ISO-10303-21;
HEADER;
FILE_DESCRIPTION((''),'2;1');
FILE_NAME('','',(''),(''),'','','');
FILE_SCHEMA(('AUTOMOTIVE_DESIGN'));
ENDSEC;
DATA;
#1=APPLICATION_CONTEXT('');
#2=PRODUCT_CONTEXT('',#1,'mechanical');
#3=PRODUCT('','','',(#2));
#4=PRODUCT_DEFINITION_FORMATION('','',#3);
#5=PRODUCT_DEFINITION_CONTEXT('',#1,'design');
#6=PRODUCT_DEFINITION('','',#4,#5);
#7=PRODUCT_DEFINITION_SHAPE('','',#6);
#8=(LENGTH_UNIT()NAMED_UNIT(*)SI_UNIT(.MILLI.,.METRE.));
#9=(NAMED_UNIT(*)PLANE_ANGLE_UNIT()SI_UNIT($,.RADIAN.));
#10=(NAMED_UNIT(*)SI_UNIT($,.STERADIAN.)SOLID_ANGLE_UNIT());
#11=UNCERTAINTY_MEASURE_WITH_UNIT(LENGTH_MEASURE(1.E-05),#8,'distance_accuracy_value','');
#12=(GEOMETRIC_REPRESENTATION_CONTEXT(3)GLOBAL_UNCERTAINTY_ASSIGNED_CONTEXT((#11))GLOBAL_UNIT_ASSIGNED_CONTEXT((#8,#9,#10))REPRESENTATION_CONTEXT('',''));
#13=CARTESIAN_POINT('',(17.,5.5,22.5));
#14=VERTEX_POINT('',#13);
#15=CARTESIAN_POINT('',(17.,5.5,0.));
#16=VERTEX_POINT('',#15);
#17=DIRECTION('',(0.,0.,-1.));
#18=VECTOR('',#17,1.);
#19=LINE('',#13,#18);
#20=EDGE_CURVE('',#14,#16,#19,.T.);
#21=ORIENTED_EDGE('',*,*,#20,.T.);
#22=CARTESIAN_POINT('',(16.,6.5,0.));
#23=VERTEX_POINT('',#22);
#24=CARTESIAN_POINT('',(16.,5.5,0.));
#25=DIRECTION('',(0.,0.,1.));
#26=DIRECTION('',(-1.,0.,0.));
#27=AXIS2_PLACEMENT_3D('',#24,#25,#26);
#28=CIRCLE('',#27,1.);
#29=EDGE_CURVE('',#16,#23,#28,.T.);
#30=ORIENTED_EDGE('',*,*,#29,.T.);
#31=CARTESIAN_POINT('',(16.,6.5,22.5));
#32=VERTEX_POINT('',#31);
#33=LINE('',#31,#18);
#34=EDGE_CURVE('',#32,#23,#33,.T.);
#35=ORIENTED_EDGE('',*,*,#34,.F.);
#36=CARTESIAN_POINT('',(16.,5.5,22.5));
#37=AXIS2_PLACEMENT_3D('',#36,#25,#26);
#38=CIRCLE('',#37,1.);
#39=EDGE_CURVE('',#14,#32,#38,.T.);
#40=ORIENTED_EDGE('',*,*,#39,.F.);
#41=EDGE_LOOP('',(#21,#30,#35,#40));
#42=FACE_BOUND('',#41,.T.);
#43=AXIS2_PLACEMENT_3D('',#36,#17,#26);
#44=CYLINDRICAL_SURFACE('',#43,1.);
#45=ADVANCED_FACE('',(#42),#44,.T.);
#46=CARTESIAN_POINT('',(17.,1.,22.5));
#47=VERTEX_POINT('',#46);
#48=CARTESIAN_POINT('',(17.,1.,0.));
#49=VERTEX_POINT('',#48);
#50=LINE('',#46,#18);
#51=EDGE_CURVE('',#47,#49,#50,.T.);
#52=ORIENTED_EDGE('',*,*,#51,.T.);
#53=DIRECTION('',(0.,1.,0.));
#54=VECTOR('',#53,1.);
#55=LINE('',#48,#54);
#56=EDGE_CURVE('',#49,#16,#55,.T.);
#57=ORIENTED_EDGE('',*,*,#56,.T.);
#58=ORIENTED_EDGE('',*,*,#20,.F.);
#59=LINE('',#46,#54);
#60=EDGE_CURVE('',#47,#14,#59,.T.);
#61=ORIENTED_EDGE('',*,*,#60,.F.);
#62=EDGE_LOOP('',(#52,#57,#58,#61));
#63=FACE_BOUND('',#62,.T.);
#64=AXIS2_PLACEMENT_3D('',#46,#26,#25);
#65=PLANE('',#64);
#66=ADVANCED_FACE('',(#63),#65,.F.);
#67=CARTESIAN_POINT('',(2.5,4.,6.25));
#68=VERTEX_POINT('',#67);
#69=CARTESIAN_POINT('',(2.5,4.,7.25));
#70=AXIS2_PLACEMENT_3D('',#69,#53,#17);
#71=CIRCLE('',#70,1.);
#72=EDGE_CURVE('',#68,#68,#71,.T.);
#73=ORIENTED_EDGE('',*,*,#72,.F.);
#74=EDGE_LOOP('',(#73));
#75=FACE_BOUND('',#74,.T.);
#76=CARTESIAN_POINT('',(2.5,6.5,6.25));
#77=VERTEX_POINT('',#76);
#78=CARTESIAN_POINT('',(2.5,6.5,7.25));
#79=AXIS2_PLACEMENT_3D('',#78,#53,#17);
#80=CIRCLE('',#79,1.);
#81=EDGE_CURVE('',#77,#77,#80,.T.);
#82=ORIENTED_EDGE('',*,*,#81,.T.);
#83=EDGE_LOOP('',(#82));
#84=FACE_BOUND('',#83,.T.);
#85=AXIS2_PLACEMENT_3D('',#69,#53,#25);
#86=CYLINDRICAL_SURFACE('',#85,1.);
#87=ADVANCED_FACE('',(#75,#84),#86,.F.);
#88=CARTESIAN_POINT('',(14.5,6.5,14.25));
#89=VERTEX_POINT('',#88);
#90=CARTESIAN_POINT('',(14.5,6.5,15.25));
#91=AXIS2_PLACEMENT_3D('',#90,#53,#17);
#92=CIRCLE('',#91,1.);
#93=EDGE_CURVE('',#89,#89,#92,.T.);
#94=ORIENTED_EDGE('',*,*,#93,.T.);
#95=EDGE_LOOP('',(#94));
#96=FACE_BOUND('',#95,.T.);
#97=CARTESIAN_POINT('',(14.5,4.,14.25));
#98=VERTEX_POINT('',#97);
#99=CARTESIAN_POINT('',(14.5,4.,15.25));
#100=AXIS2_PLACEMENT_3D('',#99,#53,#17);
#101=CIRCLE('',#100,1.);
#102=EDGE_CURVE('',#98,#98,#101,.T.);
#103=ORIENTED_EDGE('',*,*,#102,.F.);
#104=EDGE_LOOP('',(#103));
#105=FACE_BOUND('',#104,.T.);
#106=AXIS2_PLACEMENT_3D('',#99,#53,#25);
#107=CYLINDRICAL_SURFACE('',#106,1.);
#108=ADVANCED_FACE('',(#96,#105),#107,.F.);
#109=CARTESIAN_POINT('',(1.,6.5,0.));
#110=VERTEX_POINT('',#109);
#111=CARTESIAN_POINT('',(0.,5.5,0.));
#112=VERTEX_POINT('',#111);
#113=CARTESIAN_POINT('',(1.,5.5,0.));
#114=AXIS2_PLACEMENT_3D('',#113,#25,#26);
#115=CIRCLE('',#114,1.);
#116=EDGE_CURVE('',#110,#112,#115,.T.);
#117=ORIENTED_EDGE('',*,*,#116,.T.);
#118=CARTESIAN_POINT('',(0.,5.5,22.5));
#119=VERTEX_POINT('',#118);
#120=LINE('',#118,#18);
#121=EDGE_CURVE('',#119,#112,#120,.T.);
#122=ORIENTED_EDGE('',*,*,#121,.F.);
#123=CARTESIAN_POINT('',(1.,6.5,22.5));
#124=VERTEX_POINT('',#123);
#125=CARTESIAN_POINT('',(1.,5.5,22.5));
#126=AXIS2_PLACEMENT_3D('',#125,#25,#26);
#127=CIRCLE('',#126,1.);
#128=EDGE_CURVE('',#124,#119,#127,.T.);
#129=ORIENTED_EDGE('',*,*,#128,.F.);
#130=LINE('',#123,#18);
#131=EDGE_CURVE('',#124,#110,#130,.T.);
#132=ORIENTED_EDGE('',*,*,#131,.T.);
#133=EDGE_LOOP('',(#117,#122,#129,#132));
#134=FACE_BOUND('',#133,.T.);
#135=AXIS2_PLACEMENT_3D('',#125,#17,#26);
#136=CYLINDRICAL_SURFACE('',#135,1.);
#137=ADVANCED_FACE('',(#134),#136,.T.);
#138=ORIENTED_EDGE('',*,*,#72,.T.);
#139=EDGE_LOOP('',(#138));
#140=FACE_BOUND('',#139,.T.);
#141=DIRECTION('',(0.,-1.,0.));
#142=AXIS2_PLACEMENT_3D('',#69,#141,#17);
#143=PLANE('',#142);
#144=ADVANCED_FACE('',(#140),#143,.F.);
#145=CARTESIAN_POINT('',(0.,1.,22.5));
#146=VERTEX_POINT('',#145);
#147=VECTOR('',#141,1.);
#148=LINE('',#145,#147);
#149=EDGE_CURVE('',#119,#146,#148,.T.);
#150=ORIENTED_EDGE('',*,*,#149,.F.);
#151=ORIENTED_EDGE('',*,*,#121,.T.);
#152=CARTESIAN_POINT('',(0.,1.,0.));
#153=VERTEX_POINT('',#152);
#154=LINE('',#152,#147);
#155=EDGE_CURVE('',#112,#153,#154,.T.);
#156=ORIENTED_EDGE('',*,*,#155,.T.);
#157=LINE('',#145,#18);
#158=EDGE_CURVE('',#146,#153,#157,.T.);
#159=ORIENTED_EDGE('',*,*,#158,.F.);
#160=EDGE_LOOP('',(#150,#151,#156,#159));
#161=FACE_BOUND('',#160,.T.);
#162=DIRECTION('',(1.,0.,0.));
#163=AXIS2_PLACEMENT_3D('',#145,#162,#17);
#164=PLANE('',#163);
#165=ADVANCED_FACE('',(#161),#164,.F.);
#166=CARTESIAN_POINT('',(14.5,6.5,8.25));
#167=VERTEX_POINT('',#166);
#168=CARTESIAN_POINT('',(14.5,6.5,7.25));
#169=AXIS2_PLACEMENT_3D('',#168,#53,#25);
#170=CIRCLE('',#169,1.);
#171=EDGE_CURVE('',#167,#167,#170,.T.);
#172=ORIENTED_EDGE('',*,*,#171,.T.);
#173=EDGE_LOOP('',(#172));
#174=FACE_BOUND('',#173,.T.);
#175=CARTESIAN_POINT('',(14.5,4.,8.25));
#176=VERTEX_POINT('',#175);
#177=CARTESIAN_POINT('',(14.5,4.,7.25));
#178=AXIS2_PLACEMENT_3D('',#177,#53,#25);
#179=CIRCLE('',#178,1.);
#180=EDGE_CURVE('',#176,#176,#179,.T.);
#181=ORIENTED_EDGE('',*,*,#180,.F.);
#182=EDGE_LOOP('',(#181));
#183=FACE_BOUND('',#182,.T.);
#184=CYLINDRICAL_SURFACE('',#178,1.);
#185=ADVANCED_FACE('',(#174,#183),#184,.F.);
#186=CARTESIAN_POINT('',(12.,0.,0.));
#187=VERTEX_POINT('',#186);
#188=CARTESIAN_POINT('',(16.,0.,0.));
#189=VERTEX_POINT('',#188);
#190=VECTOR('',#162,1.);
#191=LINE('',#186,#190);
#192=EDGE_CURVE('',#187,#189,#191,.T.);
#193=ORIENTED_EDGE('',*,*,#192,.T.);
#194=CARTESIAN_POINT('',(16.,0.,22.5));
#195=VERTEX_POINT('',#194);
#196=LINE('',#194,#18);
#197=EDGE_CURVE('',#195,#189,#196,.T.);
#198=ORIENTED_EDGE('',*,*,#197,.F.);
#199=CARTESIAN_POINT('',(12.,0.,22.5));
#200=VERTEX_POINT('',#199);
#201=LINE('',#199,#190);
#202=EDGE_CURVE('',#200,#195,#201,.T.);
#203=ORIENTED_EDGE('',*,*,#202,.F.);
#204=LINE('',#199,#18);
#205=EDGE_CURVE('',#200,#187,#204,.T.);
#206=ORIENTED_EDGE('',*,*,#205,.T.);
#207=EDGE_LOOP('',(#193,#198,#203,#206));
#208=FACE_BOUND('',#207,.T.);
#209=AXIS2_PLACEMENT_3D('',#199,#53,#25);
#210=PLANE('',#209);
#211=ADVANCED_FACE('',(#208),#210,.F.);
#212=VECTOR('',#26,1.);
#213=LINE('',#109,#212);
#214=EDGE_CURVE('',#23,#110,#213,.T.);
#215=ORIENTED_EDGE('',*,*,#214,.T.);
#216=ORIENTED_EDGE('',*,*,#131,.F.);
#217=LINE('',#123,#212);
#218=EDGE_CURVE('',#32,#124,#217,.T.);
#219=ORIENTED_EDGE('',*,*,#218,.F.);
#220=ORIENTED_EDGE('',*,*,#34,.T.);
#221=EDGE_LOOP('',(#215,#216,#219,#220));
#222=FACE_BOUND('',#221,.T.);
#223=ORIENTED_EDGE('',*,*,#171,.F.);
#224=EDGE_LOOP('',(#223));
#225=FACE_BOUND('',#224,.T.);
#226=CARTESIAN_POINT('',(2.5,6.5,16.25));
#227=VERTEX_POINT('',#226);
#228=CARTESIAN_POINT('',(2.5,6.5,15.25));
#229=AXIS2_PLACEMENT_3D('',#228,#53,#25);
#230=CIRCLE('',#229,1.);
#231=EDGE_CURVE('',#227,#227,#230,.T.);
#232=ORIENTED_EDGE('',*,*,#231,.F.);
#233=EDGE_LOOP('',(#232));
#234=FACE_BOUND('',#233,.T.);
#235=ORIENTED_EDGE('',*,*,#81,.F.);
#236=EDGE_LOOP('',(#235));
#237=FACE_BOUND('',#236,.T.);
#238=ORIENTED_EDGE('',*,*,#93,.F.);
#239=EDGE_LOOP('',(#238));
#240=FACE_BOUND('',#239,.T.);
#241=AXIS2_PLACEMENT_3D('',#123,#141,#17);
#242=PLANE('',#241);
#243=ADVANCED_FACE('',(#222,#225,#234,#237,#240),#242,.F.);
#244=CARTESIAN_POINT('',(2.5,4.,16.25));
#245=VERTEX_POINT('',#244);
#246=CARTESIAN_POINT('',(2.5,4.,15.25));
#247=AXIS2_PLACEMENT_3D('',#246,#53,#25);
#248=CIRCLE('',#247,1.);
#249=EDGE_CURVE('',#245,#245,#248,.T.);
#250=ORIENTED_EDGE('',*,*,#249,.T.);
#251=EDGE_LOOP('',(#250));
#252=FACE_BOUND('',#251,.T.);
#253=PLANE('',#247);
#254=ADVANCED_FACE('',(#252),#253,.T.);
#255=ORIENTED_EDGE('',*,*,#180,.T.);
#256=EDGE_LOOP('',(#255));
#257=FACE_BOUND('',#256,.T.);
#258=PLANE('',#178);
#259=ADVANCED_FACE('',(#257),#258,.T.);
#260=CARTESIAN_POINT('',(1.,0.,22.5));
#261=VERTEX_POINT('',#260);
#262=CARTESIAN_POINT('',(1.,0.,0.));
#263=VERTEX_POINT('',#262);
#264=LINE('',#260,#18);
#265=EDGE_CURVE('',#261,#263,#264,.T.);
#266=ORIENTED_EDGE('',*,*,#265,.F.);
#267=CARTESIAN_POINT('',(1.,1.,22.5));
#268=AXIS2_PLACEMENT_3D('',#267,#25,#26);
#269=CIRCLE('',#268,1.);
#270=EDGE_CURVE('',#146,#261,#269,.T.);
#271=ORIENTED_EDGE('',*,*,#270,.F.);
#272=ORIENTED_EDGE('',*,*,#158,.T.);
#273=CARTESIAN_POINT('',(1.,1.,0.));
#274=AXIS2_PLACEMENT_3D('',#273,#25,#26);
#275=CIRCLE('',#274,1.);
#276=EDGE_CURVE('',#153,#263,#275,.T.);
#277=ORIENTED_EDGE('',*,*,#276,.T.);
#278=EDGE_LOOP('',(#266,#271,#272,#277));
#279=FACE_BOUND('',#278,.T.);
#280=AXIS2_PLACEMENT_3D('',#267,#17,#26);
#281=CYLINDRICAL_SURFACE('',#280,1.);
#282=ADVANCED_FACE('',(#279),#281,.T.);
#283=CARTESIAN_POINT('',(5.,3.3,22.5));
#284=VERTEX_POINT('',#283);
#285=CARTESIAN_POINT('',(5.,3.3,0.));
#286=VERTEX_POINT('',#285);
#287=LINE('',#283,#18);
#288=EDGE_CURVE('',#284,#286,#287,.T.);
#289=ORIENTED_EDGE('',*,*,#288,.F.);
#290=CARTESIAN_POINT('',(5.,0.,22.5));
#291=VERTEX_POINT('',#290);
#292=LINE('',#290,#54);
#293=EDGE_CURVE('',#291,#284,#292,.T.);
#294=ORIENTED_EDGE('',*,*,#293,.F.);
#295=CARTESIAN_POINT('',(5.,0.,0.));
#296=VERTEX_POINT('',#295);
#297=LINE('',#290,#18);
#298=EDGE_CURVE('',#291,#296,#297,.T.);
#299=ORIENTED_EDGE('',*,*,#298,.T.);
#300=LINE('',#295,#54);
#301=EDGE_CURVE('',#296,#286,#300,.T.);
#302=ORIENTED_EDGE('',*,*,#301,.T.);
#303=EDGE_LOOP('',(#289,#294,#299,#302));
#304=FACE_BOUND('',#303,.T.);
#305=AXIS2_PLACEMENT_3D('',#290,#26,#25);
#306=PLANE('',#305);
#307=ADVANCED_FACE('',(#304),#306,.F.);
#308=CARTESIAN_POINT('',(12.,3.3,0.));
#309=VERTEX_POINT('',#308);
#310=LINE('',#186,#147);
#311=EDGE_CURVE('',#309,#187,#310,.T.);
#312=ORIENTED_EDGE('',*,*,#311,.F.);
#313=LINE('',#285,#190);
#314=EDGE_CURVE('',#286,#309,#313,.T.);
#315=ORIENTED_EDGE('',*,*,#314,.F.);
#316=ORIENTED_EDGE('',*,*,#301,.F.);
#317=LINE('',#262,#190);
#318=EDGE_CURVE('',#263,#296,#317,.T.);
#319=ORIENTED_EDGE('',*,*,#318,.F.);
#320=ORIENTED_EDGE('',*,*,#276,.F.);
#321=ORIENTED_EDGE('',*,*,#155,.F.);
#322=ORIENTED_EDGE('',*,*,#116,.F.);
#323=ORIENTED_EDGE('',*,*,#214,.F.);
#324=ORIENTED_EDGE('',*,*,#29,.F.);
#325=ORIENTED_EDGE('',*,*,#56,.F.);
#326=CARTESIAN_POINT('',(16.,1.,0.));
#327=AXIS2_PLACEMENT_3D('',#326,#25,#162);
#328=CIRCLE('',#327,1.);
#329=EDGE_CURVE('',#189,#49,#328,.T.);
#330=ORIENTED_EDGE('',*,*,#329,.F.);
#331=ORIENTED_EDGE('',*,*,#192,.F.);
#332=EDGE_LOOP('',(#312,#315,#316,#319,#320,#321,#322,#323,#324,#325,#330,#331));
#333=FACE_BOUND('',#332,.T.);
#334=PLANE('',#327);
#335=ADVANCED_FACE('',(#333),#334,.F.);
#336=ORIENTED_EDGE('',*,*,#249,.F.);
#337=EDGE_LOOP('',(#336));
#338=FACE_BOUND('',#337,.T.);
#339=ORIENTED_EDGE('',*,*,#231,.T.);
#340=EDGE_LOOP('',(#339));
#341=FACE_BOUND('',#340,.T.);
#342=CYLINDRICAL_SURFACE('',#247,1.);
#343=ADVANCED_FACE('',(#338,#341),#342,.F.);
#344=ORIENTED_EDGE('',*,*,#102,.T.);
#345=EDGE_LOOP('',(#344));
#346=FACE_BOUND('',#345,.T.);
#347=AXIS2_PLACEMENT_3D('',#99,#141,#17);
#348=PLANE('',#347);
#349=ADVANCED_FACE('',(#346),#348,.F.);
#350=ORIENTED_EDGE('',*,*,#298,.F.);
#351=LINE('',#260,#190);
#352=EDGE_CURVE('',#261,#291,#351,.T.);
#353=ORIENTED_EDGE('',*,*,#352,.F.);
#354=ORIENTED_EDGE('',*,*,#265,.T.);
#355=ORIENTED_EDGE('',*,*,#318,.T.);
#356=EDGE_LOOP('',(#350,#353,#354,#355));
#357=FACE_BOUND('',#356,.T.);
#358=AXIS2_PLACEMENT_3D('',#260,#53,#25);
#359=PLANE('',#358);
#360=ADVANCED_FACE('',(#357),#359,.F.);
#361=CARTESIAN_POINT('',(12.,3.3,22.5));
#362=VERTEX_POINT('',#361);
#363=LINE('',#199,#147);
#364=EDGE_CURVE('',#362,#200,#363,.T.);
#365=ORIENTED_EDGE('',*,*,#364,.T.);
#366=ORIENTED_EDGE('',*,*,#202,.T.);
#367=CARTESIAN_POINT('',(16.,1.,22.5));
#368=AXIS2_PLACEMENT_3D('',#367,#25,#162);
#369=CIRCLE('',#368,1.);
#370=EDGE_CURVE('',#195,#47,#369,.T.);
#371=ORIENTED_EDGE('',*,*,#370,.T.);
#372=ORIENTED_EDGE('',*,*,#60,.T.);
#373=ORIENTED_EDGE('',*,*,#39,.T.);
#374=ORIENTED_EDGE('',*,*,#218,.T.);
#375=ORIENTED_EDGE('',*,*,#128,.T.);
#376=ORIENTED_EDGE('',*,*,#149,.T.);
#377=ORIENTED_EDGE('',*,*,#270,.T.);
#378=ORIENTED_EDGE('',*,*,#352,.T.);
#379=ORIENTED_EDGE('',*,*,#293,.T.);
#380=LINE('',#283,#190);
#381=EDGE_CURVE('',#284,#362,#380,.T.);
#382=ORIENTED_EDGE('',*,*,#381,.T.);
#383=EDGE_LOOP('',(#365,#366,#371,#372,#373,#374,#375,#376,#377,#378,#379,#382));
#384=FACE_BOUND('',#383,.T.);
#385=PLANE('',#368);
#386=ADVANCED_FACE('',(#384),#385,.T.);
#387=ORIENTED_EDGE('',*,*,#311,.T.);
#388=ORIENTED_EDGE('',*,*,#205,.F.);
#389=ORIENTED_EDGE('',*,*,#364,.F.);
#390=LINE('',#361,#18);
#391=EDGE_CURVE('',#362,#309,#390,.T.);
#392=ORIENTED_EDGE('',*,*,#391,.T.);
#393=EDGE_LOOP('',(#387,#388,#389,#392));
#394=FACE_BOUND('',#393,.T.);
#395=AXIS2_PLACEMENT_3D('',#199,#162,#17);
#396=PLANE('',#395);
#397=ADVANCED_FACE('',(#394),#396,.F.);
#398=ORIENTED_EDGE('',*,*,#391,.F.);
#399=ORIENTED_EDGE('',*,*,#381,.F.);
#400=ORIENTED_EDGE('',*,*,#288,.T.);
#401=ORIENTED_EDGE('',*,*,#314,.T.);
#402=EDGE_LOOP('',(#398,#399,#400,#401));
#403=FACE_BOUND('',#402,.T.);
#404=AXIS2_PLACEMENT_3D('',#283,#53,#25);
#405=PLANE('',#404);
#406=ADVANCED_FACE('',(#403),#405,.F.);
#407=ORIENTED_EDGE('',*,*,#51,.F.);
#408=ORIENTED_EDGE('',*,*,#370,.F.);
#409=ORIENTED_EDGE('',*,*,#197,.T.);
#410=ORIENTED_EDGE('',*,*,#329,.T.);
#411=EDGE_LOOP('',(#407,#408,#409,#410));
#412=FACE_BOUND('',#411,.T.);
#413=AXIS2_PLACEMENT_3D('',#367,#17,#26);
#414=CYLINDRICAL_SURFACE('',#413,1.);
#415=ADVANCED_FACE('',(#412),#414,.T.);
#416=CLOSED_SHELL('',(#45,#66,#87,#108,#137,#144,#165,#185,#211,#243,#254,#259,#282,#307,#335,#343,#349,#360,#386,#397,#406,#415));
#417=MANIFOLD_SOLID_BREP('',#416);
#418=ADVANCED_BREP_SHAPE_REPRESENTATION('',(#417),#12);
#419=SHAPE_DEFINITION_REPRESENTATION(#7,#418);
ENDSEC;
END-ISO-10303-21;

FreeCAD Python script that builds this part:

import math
import FreeCAD as App
import Part
import Sketcher
Q = App.Units.Quantity

doc = App.newDocument("Part")
body = doc.addObject("PartDesign::Body", "Body")

sketch1 = doc.addObject("Sketcher::SketchObject", "Sketch")
body.addObject(sketch1)
sketch1.AttachmentSupport = (doc.XY_Plane, [""])
sketch1.MapMode = "FlatFace"
sketch1.addGeometry(Part.LineSegment(App.Vector(5, 3.3, 0), App.Vector(12, 3.3, 0)), False)
sketch1.addGeometry(Part.LineSegment(App.Vector(12, 3.3, 0), App.Vector(12, 0, 0)), False)
sketch1.addGeometry(Part.LineSegment(App.Vector(12, 0, 0), App.Vector(16, 0, 0)), False)
sketch1.addGeometry(Part.ArcOfCircle(Part.Circle(App.Vector(16, 1, 0), App.Vector(0, 0, 1), 1), math.radians(-90), math.radians(0)), False)
sketch1.addGeometry(Part.LineSegment(App.Vector(17, 1, 0), App.Vector(17, 5.5, 0)), False)
sketch1.addGeometry(Part.ArcOfCircle(Part.Circle(App.Vector(16, 5.5, 0), App.Vector(0, 0, 1), 1), math.radians(0), math.radians(90)), False)
sketch1.addGeometry(Part.LineSegment(App.Vector(16, 6.5, 0), App.Vector(1, 6.5, 0)), False)
sketch1.addGeometry(Part.ArcOfCircle(Part.Circle(App.Vector(1, 5.5, 0), App.Vector(0, 0, 1), 1), math.radians(90), math.radians(180)), False)
sketch1.addGeometry(Part.LineSegment(App.Vector(0, 5.5, 0), App.Vector(0, 1, 0)), False)
sketch1.addGeometry(Part.ArcOfCircle(Part.Circle(App.Vector(1, 1, 0), App.Vector(0, 0, 1), 1), math.radians(-180), math.radians(-90)), False)
sketch1.addGeometry(Part.LineSegment(App.Vector(1, 0, 0), App.Vector(5, 0, 0)), False)
sketch1.addGeometry(Part.LineSegment(App.Vector(5, 0, 0), App.Vector(5, 3.3, 0)), False)
sketch1.addConstraint(Sketcher.Constraint("Coincident", 0, 2, 1, 1))
sketch1.addConstraint(Sketcher.Constraint("Coincident", 1, 2, 2, 1))
sketch1.addConstraint(Sketcher.Constraint("Tangent", 2, 2, 3, 1))
sketch1.addConstraint(Sketcher.Constraint("Tangent", 3, 2, 4, 1))
sketch1.addConstraint(Sketcher.Constraint("Tangent", 4, 2, 5, 1))
sketch1.addConstraint(Sketcher.Constraint("Tangent", 5, 2, 6, 1))
sketch1.addConstraint(Sketcher.Constraint("Tangent", 6, 2, 7, 1))
sketch1.addConstraint(Sketcher.Constraint("Tangent", 7, 2, 8, 1))
sketch1.addConstraint(Sketcher.Constraint("Tangent", 8, 2, 9, 1))
sketch1.addConstraint(Sketcher.Constraint("Tangent", 9, 2, 10, 1))
sketch1.addConstraint(Sketcher.Constraint("Coincident", 10, 2, 11, 1))
sketch1.addConstraint(Sketcher.Constraint("Coincident", 11, 2, 0, 1))
sketch1.addConstraint(Sketcher.Constraint("Horizontal", 0))
sketch1.addConstraint(Sketcher.Constraint("Vertical", 1))
sketch1.addConstraint(Sketcher.Constraint("Horizontal", 2))
sketch1.addConstraint(Sketcher.Constraint("Vertical", 4))
sketch1.addConstraint(Sketcher.Constraint("Horizontal", 6))
sketch1.addConstraint(Sketcher.Constraint("Vertical", 8))
sketch1.addConstraint(Sketcher.Constraint("Horizontal", 10))
sketch1.addConstraint(Sketcher.Constraint("Vertical", 11))
sketch1.addConstraint(Sketcher.Constraint("Equal", 3, 5))
sketch1.addConstraint(Sketcher.Constraint("Equal", 5, 7))
sketch1.addConstraint(Sketcher.Constraint("Equal", 7, 9))
sketch1.addConstraint(Sketcher.Constraint("PointOnObject", 1, 2, -1))
sketch1.addConstraint(Sketcher.Constraint("PointOnObject", 7, 2, -2))
sketch1.addConstraint(Sketcher.Constraint("PointOnObject", 9, 2, -1))
sketch1.addConstraint(Sketcher.Constraint("Equal", 2, 10))
sketch1.addConstraint(Sketcher.Constraint("Radius", 3, Q("1 mm")))
sketch1.addConstraint(Sketcher.Constraint("DistanceX", 0, 1, 0, 2, Q("7 mm")))
sketch1.addConstraint(Sketcher.Constraint("DistanceX", 2, 1, 2, 2, Q("4 mm")))
sketch1.addConstraint(Sketcher.Constraint("DistanceY", 1, 2, 1, 1, Q("3.3 mm")))
sketch1.addConstraint(Sketcher.Constraint("DistanceY", 4, 1, 4, 2, Q("4.5 mm")))
pad1 = doc.addObject("PartDesign::Pad", "Pad")
body.addObject(pad1)
pad1.Profile = sketch1
pad1.Length = 22.5

sketch2 = doc.addObject("Sketcher::SketchObject", "Sketch001")
body.addObject(sketch2)
sketch2.AttachmentSupport = (doc.XZ_Plane, [""])
sketch2.MapMode = "FlatFace"
sketch2.AttachmentOffset = App.Placement(App.Vector(0, 0, -6.5), App.Rotation())
sketch2.addGeometry(Part.Circle(App.Vector(2.5, 15.25, 0), App.Vector(0, 0, 1), 1), False)
sketch2.addGeometry(Part.Circle(App.Vector(2.5, 7.25, 0), App.Vector(0, 0, 1), 1), False)
sketch2.addGeometry(Part.Circle(App.Vector(14.5, 7.25, 0), App.Vector(0, 0, 1), 1), False)
sketch2.addGeometry(Part.Circle(App.Vector(14.5, 15.25, 0), App.Vector(0, 0, 1), 1), False)
sketch2.addConstraint(Sketcher.Constraint("Equal", 0, 1))
sketch2.addConstraint(Sketcher.Constraint("Equal", 1, 2))
sketch2.addConstraint(Sketcher.Constraint("Equal", 2, 3))
sketch2.addConstraint(Sketcher.Constraint("Horizontal", 1, 3, 2, 3))
sketch2.addConstraint(Sketcher.Constraint("Horizontal", 0, 3, 3, 3))
sketch2.addConstraint(Sketcher.Constraint("Vertical", 0, 3, 1, 3))
sketch2.addConstraint(Sketcher.Constraint("Vertical", 2, 3, 3, 3))
sketch2.addConstraint(Sketcher.Constraint("Diameter", 0, Q("2 mm")))
sketch2.addConstraint(Sketcher.Constraint("DistanceY", 1, 3, 0, 3, Q("8 mm")))
sketch2.addConstraint(Sketcher.Constraint("DistanceX", 1, 3, 2, 3, Q("12 mm")))
sketch2.addConstraint(Sketcher.Constraint("DistanceX", -1, 1, 0, 3, Q("2.5 mm")))
sketch2.addConstraint(Sketcher.Constraint("DistanceY", -1, 1, 0, 3, Q("15.25 mm")))
pocket1 = doc.addObject("PartDesign::Pocket", "Pocket")
body.addObject(pocket1)
pocket1.Profile = sketch2
pocket1.Length = 2.5
pocket1.Reversed = True

doc.recompute()
